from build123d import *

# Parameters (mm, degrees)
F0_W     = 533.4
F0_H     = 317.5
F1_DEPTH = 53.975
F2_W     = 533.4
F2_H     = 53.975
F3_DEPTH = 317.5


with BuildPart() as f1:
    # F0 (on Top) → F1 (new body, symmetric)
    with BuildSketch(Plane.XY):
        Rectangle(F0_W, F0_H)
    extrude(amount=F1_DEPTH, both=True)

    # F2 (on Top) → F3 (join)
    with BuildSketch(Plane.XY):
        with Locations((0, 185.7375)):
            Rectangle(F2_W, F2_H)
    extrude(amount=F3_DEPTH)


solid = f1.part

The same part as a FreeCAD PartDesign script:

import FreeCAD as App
import Part
import Sketcher
Q = App.Units.Quantity

doc = App.newDocument("Part")
body = doc.addObject("PartDesign::Body", "Body")

# Sketch on XY plane
sketch1 = body.newObject("Sketcher::SketchObject", "Sketch")
sketch1.AttachmentSupport = (doc.getObject("XY_Plane"), [""])
sketch1.MapMode = "FlatFace"
sketch1.addGeometry(Part.LineSegment(App.Vector(-267, 159, 0), App.Vector(-267, -159, 0)), False)
sketch1.addGeometry(Part.LineSegment(App.Vector(-267, -159, 0), App.Vector(267, -159, 0)), False)
sketch1.addGeometry(Part.LineSegment(App.Vector(267, -159, 0), App.Vector(267, 159, 0)), False)
sketch1.addGeometry(Part.LineSegment(App.Vector(267, 159, 0), App.Vector(-267, 159, 0)), False)
sketch1.addConstraint(Sketcher.Constraint("Coincident", 0, 2, 1, 1))
sketch1.addConstraint(Sketcher.Constraint("Coincident", 1, 2, 2, 1))
sketch1.addConstraint(Sketcher.Constraint("Coincident", 2, 2, 3, 1))
sketch1.addConstraint(Sketcher.Constraint("Coincident", 3, 2, 0, 1))
sketch1.addConstraint(Sketcher.Constraint("Vertical", 0))
sketch1.addConstraint(Sketcher.Constraint("Horizontal", 1))
sketch1.addConstraint(Sketcher.Constraint("Vertical", 2))
sketch1.addConstraint(Sketcher.Constraint("Horizontal", 3))
sketch1.addConstraint(Sketcher.Constraint("Symmetric", 0, 2, 2, 2, -1, 1))
sketch1.addConstraint(Sketcher.Constraint("DistanceX", 1, 1, 1, 2, Q("21 in")))
sketch1.addConstraint(Sketcher.Constraint("DistanceY", 0, 2, 0, 1, Q("12.5 in")))
pad1 = body.newObject("PartDesign::Pad", "Pad")
pad1.Profile = sketch1
pad1.Length = Q("4.25 in")
pad1.Midplane = True

# Sketch on XY plane
sketch2 = body.newObject("Sketcher::SketchObject", "Sketch001")
sketch2.AttachmentSupport = (doc.getObject("XY_Plane"), [""])
sketch2.MapMode = "FlatFace"
sketch2.addGeometry(Part.LineSegment(App.Vector(-267, 213, 0), App.Vector(-267, 159, 0)), False)
sketch2.addGeometry(Part.LineSegment(App.Vector(-267, 159, 0), App.Vector(267, 159, 0)), False)
sketch2.addGeometry(Part.LineSegment(App.Vector(267, 159, 0), App.Vector(267, 213, 0)), False)
sketch2.addGeometry(Part.LineSegment(App.Vector(267, 213, 0), App.Vector(-267, 213, 0)), False)
sketch2.addConstraint(Sketcher.Constraint("Coincident", 0, 2, 1, 1))
sketch2.addConstraint(Sketcher.Constraint("Coincident", 1, 2, 2, 1))
sketch2.addConstraint(Sketcher.Constraint("Coincident", 2, 2, 3, 1))
sketch2.addConstraint(Sketcher.Constraint("Coincident", 3, 2, 0, 1))
sketch2.addConstraint(Sketcher.Constraint("Vertical", 0))
sketch2.addConstraint(Sketcher.Constraint("Horizontal", 1))
sketch2.addConstraint(Sketcher.Constraint("Vertical", 2))
sketch2.addConstraint(Sketcher.Constraint("Horizontal", 3))
sketch2.addConstraint(Sketcher.Constraint("DistanceX", 1, 1, 1, 2, Q("21 in")))
sketch2.addConstraint(Sketcher.Constraint("DistanceX", 0, 2, -1, 1, Q("10.5 in")))
sketch2.addConstraint(Sketcher.Constraint("DistanceY", 0, 2, 0, 1, Q("2.125 in")))
sketch2.addConstraint(Sketcher.Constraint("DistanceY", -1, 1, 0, 2, Q("6.25 in")))
pad2 = body.newObject("PartDesign::Pad", "Pad001")
pad2.Profile = sketch2
pad2.Length = Q("12.5 in")

doc.recompute()
